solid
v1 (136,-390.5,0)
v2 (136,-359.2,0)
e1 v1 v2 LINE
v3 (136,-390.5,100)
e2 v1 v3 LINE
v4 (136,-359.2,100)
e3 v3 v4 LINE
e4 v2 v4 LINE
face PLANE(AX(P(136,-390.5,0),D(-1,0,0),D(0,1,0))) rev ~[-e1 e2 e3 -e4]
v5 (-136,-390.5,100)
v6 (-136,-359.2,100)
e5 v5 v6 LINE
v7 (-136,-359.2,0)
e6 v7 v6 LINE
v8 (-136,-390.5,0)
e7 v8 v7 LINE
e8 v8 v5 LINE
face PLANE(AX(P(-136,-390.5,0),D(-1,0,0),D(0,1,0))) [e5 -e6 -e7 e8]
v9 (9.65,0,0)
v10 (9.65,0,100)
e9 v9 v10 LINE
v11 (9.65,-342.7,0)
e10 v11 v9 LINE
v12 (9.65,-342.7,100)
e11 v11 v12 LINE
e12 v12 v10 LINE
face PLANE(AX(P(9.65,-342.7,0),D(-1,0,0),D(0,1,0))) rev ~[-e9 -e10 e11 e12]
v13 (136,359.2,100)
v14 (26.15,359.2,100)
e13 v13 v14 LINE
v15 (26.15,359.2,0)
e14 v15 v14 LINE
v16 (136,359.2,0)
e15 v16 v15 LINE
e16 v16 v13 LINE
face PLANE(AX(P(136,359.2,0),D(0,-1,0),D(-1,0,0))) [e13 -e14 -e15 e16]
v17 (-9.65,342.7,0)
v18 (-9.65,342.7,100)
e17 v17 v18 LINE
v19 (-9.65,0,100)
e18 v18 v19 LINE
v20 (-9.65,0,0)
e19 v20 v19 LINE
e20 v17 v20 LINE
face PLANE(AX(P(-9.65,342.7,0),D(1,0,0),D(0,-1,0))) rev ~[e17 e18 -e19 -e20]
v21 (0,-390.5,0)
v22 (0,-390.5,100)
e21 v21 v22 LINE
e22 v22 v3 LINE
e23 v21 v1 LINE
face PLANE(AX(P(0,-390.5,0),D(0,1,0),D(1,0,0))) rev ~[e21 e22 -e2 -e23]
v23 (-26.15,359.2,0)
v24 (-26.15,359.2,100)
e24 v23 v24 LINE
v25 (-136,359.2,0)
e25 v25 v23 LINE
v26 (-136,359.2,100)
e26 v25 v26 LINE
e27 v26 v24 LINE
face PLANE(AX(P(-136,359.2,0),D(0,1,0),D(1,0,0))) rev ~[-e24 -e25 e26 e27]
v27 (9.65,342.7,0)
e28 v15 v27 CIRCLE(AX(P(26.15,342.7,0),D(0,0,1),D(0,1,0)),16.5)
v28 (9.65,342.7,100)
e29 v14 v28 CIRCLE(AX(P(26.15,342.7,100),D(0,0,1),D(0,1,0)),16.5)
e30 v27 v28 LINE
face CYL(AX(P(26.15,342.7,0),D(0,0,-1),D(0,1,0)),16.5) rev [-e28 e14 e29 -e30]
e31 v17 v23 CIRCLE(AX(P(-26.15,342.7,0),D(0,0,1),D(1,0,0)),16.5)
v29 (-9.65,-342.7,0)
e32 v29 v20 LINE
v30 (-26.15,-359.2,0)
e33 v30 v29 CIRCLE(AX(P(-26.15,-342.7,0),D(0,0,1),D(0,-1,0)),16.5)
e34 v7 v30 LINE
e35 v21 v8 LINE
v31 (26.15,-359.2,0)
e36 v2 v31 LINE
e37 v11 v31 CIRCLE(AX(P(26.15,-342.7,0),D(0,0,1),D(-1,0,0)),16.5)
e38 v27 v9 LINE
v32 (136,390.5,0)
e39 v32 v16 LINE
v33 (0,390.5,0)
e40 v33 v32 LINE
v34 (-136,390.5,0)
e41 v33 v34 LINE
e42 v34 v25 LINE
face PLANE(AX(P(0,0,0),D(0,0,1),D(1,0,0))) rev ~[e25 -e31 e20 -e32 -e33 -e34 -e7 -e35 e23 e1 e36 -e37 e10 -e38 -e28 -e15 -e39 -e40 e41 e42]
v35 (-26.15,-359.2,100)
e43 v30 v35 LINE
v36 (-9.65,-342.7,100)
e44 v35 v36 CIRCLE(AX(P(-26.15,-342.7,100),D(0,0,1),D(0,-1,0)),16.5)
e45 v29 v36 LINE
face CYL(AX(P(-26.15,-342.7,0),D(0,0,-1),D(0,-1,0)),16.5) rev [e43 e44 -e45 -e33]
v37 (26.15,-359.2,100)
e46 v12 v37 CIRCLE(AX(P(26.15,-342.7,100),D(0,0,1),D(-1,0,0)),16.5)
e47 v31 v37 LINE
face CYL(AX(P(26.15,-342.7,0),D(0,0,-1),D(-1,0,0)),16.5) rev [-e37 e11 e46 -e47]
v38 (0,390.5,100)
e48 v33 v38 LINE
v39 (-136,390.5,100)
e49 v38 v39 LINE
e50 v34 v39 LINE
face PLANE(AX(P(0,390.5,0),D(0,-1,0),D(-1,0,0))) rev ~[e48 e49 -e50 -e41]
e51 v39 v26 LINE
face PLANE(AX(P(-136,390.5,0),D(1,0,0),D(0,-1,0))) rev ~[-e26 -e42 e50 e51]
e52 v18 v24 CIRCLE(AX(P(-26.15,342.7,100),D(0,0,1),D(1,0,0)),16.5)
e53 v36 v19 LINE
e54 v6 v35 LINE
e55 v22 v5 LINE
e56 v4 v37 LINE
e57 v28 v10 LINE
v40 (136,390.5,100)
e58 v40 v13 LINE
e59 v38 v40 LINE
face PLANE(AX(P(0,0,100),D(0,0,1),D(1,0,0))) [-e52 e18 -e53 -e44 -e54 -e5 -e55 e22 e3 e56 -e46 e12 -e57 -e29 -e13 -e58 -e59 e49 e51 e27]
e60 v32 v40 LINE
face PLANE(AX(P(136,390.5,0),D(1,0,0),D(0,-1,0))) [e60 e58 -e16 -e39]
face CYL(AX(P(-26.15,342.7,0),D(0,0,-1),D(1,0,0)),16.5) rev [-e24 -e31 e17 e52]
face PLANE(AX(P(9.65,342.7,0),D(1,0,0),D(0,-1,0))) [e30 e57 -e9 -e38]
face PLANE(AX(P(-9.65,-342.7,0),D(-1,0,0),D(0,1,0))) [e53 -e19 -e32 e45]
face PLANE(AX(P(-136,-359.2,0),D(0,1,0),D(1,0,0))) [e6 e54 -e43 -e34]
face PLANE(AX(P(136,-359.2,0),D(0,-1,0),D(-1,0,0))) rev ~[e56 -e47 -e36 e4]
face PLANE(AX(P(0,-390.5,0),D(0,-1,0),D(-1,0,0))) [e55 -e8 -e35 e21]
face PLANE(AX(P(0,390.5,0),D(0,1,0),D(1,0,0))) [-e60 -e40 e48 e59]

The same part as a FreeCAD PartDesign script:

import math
import FreeCAD as App
import Part
import Sketcher
from FreeCAD import Vector
Q = App.Units.Quantity

doc = App.newDocument("Part")
body = doc.addObject("PartDesign::Body", "Body")

# Sketch on XY plane
sketch1 = doc.addObject("Sketcher::SketchObject", "Sketch")
body.addObject(sketch1)
sketch1.AttachmentSupport = (doc.XY_Plane, [""])
sketch1.MapMode = "FlatFace"
sketch1.addGeometry(Part.LineSegment(Vector(-136, -359, 0), Vector(-136, -390, 0)), False)
sketch1.addGeometry(Part.LineSegment(Vector(-136, -390, 0), Vector(136, -390, 0)), False)
sketch1.addGeometry(Part.LineSegment(Vector(136, -390, 0), Vector(136, -359, 0)), False)
sketch1.addGeometry(Part.LineSegment(Vector(136, -359, 0), Vector(26, -359, 0)), False)
sketch1.addGeometry(Part.ArcOfCircle(Part.Circle(Vector(26, -343, 0), Vector(0, 0, 1), 16), math.radians(180), math.radians(270)), False)
sketch1.addGeometry(Part.LineSegment(Vector(10, -343, 0), Vector(10, 343, 0)), False)
sketch1.addGeometry(Part.ArcOfCircle(Part.Circle(Vector(26, 343, 0), Vector(0, 0, 1), 16), math.radians(90), math.radians(180)), False)
sketch1.addGeometry(Part.LineSegment(Vector(26, 359, 0), Vector(136, 359, 0)), False)
sketch1.addGeometry(Part.LineSegment(Vector(136, 359, 0), Vector(136, 390, 0)), False)
sketch1.addGeometry(Part.LineSegment(Vector(136, 390, 0), Vector(-136, 390, 0)), False)
sketch1.addGeometry(Part.LineSegment(Vector(-136, 390, 0), Vector(-136, 359, 0)), False)
sketch1.addGeometry(Part.LineSegment(Vector(-136, 359, 0), Vector(-26, 359, 0)), False)
sketch1.addGeometry(Part.ArcOfCircle(Part.Circle(Vector(-26, 343, 0), Vector(0, 0, 1), 16), math.radians(0), math.radians(90)), False)
sketch1.addGeometry(Part.LineSegment(Vector(-10, 343, 0), Vector(-10, -343, 0)), False)
sketch1.addGeometry(Part.ArcOfCircle(Part.Circle(Vector(-26, -343, 0), Vector(0, 0, 1), 16), math.radians(-90), math.radians(0)), False)
sketch1.addGeometry(Part.LineSegment(Vector(-26, -359, 0), Vector(-136, -359, 0)), False)
sketch1.addConstraint(Sketcher.Constraint("Coincident", 0, 2, 1, 1))
sketch1.addConstraint(Sketcher.Constraint("Coincident", 1, 2, 2, 1))
sketch1.addConstraint(Sketcher.Constraint("Coincident", 2, 2, 3, 1))
sketch1.addConstraint(Sketcher.Constraint("Tangent", 3, 2, 4, 2))
sketch1.addConstraint(Sketcher.Constraint("Tangent", 4, 1, 5, 1))
sketch1.addConstraint(Sketcher.Constraint("Tangent", 5, 2, 6, 2))
sketch1.addConstraint(Sketcher.Constraint("Tangent", 6, 1, 7, 1))
sketch1.addConstraint(Sketcher.Constraint("Coincident", 7, 2, 8, 1))
sketch1.addConstraint(Sketcher.Constraint("Coincident", 8, 2, 9, 1))
sketch1.addConstraint(Sketcher.Constraint("Coincident", 9, 2, 10, 1))
sketch1.addConstraint(Sketcher.Constraint("Coincident", 10, 2, 11, 1))
sketch1.addConstraint(Sketcher.Constraint("Tangent", 11, 2, 12, 2))
sketch1.addConstraint(Sketcher.Constraint("Tangent", 12, 1, 13, 1))
sketch1.addConstraint(Sketcher.Constraint("Tangent", 13, 2, 14, 2))
sketch1.addConstraint(Sketcher.Constraint("Tangent", 14, 1, 15, 1))
sketch1.addConstraint(Sketcher.Constraint("Coincident", 15, 2, 0, 1))
sketch1.addConstraint(Sketcher.Constraint("Vertical", 0))
sketch1.addConstraint(Sketcher.Constraint("Horizontal", 1))
sketch1.addConstraint(Sketcher.Constraint("Vertical", 2))
sketch1.addConstraint(Sketcher.Constraint("Horizontal", 3))
sketch1.addConstraint(Sketcher.Constraint("Vertical", 5))
sketch1.addConstraint(Sketcher.Constraint("Horizontal", 7))
sketch1.addConstraint(Sketcher.Constraint("Vertical", 8))
sketch1.addConstraint(Sketcher.Constraint("Horizontal", 9))
sketch1.addConstraint(Sketcher.Constraint("Vertical", 10))
sketch1.addConstraint(Sketcher.Constraint("Horizontal", 11))
sketch1.addConstraint(Sketcher.Constraint("Vertical", 13))
sketch1.addConstraint(Sketcher.Constraint("Horizontal", 15))
sketch1.addConstraint(Sketcher.Constraint("Equal", 4, 6))
sketch1.addConstraint(Sketcher.Constraint("Equal", 6, 12))
sketch1.addConstraint(Sketcher.Constraint("Equal", 12, 14))
sketch1.addConstraint(Sketcher.Constraint("Symmetric", 4, 3, 12, 3, -1, 1))
sketch1.addConstraint(Sketcher.Constraint("Symmetric", 0, 2, 8, 2, -1, 1))
sketch1.addConstraint(Sketcher.Constraint("Symmetric", 7, 2, 10, 2, -2))
sketch1.addConstraint(Sketcher.Constraint("Symmetric", 2, 2, 15, 2, -2))
sketch1.addConstraint(Sketcher.Constraint("Radius", 4, Q("16.5 mm")))
sketch1.addConstraint(Sketcher.Constraint("DistanceY", 0, 2, 0, 1, Q("31.3 mm")))
sketch1.addConstraint(Sketcher.Constraint("DistanceX", 0, 2, -1, 1, Q("136 mm")))
sketch1.addConstraint(Sketcher.Constraint("DistanceY", 0, 2, -1, 1, Q("390.5 mm")))
sketch1.addConstraint(Sketcher.Constraint("DistanceX", -1, 1, 4, 1, Q("9.65 mm")))
pad1 = doc.addObject("PartDesign::Pad", "Pad")
body.addObject(pad1)
pad1.Profile = sketch1
pad1.Length = 100

doc.recompute()
